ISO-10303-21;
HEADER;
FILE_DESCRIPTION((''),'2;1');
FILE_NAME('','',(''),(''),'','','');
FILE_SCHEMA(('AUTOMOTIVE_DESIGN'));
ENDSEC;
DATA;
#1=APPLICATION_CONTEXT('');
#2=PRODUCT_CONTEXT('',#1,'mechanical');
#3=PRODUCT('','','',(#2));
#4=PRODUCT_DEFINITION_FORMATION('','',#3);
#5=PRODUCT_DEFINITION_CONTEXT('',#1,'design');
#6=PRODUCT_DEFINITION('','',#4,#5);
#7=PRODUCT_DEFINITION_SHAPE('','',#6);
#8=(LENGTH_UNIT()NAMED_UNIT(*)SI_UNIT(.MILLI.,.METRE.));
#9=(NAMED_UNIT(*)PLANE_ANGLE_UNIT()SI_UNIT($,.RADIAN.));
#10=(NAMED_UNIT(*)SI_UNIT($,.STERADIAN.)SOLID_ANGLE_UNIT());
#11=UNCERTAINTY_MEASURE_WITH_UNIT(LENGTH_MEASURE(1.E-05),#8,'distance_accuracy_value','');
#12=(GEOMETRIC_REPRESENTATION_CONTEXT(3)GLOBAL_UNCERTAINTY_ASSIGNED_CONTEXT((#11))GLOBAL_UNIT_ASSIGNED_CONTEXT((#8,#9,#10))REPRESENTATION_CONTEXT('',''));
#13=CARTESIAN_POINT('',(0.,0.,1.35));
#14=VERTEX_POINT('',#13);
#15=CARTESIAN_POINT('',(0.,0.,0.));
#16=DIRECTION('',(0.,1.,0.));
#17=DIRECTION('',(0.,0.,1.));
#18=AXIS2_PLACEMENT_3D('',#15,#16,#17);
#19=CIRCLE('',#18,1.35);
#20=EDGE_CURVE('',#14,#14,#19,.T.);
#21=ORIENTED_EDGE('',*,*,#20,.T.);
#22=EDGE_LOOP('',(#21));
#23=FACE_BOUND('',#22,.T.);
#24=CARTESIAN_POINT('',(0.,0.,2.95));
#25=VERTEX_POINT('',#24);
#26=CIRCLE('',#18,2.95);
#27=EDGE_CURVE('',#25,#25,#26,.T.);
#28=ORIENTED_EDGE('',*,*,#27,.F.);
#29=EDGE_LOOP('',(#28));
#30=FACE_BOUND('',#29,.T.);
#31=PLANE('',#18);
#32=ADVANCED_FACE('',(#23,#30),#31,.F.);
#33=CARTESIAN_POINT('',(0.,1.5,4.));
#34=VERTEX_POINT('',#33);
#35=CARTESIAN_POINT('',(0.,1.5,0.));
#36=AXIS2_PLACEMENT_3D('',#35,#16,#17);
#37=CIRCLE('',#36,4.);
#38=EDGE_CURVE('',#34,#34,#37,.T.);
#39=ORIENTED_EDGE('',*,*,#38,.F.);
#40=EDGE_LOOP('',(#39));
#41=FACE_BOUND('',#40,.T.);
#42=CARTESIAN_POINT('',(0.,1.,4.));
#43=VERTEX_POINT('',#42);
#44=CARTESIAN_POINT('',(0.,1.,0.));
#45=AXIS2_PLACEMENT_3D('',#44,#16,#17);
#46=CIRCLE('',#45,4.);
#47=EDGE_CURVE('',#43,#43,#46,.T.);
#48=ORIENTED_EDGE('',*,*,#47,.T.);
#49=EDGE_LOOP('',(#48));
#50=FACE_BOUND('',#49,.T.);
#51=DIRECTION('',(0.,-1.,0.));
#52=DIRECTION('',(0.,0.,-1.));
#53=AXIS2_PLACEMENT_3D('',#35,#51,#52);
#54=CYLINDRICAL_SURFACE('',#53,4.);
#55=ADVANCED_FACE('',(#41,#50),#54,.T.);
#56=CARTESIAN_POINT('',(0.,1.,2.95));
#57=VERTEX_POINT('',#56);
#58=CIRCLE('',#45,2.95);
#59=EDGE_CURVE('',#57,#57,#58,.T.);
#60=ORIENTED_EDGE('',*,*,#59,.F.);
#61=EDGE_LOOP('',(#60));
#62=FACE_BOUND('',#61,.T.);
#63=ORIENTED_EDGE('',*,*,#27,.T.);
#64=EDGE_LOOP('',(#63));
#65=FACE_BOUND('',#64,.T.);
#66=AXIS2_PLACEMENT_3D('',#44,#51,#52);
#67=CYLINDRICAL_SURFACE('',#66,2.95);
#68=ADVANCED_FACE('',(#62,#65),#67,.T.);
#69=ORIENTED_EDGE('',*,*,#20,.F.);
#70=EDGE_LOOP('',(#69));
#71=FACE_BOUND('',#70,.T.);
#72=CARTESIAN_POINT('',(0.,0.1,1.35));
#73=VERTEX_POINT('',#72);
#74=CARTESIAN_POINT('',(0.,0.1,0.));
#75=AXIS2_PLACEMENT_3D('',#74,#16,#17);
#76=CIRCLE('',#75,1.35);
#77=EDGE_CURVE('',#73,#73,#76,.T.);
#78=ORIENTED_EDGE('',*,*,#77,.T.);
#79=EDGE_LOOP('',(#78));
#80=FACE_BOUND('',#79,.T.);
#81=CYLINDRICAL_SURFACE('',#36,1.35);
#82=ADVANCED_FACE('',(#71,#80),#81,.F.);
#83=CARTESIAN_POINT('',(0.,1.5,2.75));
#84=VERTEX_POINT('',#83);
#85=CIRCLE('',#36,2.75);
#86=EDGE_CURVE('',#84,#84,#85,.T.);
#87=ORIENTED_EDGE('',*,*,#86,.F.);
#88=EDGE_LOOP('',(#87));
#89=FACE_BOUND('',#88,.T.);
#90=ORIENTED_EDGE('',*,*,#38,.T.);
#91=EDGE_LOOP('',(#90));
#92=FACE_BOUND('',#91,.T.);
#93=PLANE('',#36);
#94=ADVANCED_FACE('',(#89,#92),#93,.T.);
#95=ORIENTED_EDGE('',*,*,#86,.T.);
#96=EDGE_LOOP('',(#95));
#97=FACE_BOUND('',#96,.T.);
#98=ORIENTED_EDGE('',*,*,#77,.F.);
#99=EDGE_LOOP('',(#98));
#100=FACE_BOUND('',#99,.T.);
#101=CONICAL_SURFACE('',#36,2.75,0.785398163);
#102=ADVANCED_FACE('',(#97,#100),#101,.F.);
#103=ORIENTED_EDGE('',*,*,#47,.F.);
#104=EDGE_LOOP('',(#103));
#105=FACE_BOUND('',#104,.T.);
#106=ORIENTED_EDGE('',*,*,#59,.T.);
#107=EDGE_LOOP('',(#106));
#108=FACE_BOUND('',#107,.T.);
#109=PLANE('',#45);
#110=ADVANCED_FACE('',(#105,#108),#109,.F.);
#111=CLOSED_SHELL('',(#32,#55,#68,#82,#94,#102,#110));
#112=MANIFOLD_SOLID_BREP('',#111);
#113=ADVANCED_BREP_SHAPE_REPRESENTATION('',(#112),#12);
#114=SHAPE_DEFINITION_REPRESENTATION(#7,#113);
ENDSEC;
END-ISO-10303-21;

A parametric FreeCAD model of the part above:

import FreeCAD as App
import Part
import Sketcher
from FreeCAD import Vector
Q = App.Units.Quantity


def add_polygon(sketch, points):
    """Adds a closed chain of lines whose ends are joined by coincident constraints."""
    first, n = sketch.GeometryCount, len(points)
    for a, b in zip(points, points[1:] + points[:1]):
        sketch.addGeometry(Part.LineSegment(App.Vector(*a, 0), App.Vector(*b, 0)), False)
    for i in range(n):
        sketch.addConstraint(Sketcher.Constraint("Coincident", first + i, 2, first + (i + 1) % n, 1))

doc = App.newDocument("Part")
body = doc.addObject("PartDesign::Body", "Body")

sketch1 = doc.addObject("Sketcher::SketchObject", "Sketch")
body.addObject(sketch1)
sketch1.AttachmentSupport = (doc.XZ_Plane, [""])
sketch1.MapMode = "FlatFace"
sketch1.addGeometry(Part.Circle(Vector(0, 0, 0), Vector(0, 0, 1), 3), False)
sketch1.addConstraint(Sketcher.Constraint("Coincident", 0, 3, -1, 1))
sketch1.addConstraint(Sketcher.Constraint("Diameter", 0, 5.9))
pad1 = doc.addObject("PartDesign::Pad", "Pad")
body.addObject(pad1)
pad1.Profile = sketch1
pad1.Length = 1
pad1.Reversed = True

sketch2 = doc.addObject("Sketcher::SketchObject", "Sketch001")
body.addObject(sketch2)
sketch2.AttachmentSupport = (doc.XZ_Plane, [""])
sketch2.MapMode = "FlatFace"
sketch2.AttachmentOffset = App.Placement(Vector(0, 0, -1), App.Rotation())
sketch2.addGeometry(Part.Circle(Vector(0, 0, 0), Vector(0, 0, 1), 4), False)
sketch2.addConstraint(Sketcher.Constraint("Coincident", 0, 3, -1, 1))
sketch2.addConstraint(Sketcher.Constraint("Diameter", 0, 8.0))
pad2 = doc.addObject("PartDesign::Pad", "Pad001")
body.addObject(pad2)
pad2.Profile = sketch2
pad2.Length = 0.5
pad2.Reversed = True

sketch3 = doc.addObject("Sketcher::SketchObject", "Sketch002")
body.addObject(sketch3)
sketch3.AttachmentSupport = (doc.YZ_Plane, [""])
sketch3.MapMode = "FlatFace"
add_polygon(sketch3, [(-0.81, 0), (1.5, 0), (1.5, 2.75), (0.1, 1.35), (0, 1.35)])
sketch3.addConstraint(Sketcher.Constraint("Horizontal", 0))
sketch3.addConstraint(Sketcher.Constraint("Vertical", 1))
sketch3.addConstraint(Sketcher.Constraint("Horizontal", 3))
sketch3.addConstraint(Sketcher.Constraint("PointOnObject", 0, 2, -1))
sketch3.addConstraint(Sketcher.Constraint("PointOnObject", 3, 2, -2))
sketch3.addConstraint(Sketcher.Constraint("Angle", 2, Q("-135 deg")))
sketch3.addConstraint(Sketcher.Constraint("Angle", 4, Q("-121 deg")))
sketch3.addConstraint(Sketcher.Constraint("DistanceX", 3, 2, 3, 1, 0.1))
sketch3.addConstraint(Sketcher.Constraint("DistanceY", 1, 1, 1, 2, 2.75))
sketch3.addConstraint(Sketcher.Constraint("DistanceX", -1, 1, 0, 2, 1.5))
groove = doc.addObject("PartDesign::Groove", "Groove")
body.addObject(groove)
groove.Profile = sketch3
groove.ReferenceAxis = (sketch3, ["H_Axis"])
groove.Angle = 360

doc.recompute()
